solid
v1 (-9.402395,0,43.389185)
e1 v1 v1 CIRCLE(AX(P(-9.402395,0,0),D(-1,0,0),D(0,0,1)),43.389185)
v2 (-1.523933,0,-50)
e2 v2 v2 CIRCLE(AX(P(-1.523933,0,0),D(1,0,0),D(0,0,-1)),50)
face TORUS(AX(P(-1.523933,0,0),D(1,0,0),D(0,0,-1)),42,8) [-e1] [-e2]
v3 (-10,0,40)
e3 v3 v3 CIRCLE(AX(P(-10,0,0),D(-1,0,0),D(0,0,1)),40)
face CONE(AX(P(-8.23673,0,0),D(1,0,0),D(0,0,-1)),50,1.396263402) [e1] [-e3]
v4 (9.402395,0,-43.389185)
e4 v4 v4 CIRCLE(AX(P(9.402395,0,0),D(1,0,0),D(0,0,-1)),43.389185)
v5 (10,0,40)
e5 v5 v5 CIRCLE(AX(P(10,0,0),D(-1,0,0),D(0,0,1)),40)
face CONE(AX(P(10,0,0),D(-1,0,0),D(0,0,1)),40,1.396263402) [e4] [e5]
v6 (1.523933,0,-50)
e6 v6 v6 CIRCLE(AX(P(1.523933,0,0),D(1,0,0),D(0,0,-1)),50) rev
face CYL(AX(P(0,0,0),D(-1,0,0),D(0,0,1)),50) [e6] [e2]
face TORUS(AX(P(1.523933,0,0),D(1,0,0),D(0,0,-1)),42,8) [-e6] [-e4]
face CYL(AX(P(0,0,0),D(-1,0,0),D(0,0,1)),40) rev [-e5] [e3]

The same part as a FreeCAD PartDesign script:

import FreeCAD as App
import Part
import Sketcher
from FreeCAD import Vector
Q = App.Units.Quantity


def edges_at(feature, points):
    """Names of the edges that pass closest to the given points."""
    edges = feature.Shape.Edges
    near = lambda p: min(range(len(edges)), key=lambda i: edges[i].distToShape(Part.Vertex(*p))[0])
    return sorted({f"Edge{near(p) + 1}" for p in points})

doc = App.newDocument("Part")
body = doc.addObject("PartDesign::Body", "Body")

sketch1 = doc.addObject("Sketcher::SketchObject", "Sketch")
body.addObject(sketch1)
sketch1.AttachmentSupport = (doc.XY_Plane, [""])
sketch1.MapMode = "FlatFace"
sketch1.addGeometry(Part.LineSegment(Vector(8.23673, 50, 0), Vector(-8.23673, 50, 0)), False)
sketch1.addGeometry(Part.LineSegment(Vector(-8.23673, 50, 0), Vector(-10, 40, 0)), False)
sketch1.addGeometry(Part.LineSegment(Vector(-10, 40, 0), Vector(10, 40, 0)), False)
sketch1.addGeometry(Part.LineSegment(Vector(10, 40, 0), Vector(8.23673, 50, 0)), False)
sketch1.addConstraint(Sketcher.Constraint("Coincident", 0, 2, 1, 1))
sketch1.addConstraint(Sketcher.Constraint("Coincident", 1, 2, 2, 1))
sketch1.addConstraint(Sketcher.Constraint("Coincident", 2, 2, 3, 1))
sketch1.addConstraint(Sketcher.Constraint("Coincident", 3, 2, 0, 1))
sketch1.addConstraint(Sketcher.Constraint("Horizontal", 0))
sketch1.addConstraint(Sketcher.Constraint("Horizontal", 2))
sketch1.addConstraint(Sketcher.Constraint("Equal", 1, 3))
sketch1.addConstraint(Sketcher.Constraint("DistanceX", 2, 1, 2, 2, 20.0))
sketch1.addConstraint(Sketcher.Constraint("Angle", 1, Q("-100 deg")))
sketch1.addConstraint(Sketcher.Constraint("DistanceY", -1, 1, 0, 2, 50.0))
sketch1.addConstraint(Sketcher.Constraint("DistanceX", 1, 2, -1, 1, 10.0))
sketch1.addConstraint(Sketcher.Constraint("DistanceY", -1, 1, 1, 2, 40.0))
revolution = doc.addObject("PartDesign::Revolution", "Revolution")
body.addObject(revolution)
revolution.Profile = sketch1
revolution.ReferenceAxis = (sketch1, ["H_Axis"])
revolution.Angle = 360
doc.recompute()

fillet = doc.addObject("PartDesign::Fillet", "Fillet")
body.addObject(fillet)
fillet.Base = (revolution, edges_at(revolution, [(-8.237, 0, -50), (8.237, 0, -50)]))
fillet.Radius = 8

doc.recompute()
